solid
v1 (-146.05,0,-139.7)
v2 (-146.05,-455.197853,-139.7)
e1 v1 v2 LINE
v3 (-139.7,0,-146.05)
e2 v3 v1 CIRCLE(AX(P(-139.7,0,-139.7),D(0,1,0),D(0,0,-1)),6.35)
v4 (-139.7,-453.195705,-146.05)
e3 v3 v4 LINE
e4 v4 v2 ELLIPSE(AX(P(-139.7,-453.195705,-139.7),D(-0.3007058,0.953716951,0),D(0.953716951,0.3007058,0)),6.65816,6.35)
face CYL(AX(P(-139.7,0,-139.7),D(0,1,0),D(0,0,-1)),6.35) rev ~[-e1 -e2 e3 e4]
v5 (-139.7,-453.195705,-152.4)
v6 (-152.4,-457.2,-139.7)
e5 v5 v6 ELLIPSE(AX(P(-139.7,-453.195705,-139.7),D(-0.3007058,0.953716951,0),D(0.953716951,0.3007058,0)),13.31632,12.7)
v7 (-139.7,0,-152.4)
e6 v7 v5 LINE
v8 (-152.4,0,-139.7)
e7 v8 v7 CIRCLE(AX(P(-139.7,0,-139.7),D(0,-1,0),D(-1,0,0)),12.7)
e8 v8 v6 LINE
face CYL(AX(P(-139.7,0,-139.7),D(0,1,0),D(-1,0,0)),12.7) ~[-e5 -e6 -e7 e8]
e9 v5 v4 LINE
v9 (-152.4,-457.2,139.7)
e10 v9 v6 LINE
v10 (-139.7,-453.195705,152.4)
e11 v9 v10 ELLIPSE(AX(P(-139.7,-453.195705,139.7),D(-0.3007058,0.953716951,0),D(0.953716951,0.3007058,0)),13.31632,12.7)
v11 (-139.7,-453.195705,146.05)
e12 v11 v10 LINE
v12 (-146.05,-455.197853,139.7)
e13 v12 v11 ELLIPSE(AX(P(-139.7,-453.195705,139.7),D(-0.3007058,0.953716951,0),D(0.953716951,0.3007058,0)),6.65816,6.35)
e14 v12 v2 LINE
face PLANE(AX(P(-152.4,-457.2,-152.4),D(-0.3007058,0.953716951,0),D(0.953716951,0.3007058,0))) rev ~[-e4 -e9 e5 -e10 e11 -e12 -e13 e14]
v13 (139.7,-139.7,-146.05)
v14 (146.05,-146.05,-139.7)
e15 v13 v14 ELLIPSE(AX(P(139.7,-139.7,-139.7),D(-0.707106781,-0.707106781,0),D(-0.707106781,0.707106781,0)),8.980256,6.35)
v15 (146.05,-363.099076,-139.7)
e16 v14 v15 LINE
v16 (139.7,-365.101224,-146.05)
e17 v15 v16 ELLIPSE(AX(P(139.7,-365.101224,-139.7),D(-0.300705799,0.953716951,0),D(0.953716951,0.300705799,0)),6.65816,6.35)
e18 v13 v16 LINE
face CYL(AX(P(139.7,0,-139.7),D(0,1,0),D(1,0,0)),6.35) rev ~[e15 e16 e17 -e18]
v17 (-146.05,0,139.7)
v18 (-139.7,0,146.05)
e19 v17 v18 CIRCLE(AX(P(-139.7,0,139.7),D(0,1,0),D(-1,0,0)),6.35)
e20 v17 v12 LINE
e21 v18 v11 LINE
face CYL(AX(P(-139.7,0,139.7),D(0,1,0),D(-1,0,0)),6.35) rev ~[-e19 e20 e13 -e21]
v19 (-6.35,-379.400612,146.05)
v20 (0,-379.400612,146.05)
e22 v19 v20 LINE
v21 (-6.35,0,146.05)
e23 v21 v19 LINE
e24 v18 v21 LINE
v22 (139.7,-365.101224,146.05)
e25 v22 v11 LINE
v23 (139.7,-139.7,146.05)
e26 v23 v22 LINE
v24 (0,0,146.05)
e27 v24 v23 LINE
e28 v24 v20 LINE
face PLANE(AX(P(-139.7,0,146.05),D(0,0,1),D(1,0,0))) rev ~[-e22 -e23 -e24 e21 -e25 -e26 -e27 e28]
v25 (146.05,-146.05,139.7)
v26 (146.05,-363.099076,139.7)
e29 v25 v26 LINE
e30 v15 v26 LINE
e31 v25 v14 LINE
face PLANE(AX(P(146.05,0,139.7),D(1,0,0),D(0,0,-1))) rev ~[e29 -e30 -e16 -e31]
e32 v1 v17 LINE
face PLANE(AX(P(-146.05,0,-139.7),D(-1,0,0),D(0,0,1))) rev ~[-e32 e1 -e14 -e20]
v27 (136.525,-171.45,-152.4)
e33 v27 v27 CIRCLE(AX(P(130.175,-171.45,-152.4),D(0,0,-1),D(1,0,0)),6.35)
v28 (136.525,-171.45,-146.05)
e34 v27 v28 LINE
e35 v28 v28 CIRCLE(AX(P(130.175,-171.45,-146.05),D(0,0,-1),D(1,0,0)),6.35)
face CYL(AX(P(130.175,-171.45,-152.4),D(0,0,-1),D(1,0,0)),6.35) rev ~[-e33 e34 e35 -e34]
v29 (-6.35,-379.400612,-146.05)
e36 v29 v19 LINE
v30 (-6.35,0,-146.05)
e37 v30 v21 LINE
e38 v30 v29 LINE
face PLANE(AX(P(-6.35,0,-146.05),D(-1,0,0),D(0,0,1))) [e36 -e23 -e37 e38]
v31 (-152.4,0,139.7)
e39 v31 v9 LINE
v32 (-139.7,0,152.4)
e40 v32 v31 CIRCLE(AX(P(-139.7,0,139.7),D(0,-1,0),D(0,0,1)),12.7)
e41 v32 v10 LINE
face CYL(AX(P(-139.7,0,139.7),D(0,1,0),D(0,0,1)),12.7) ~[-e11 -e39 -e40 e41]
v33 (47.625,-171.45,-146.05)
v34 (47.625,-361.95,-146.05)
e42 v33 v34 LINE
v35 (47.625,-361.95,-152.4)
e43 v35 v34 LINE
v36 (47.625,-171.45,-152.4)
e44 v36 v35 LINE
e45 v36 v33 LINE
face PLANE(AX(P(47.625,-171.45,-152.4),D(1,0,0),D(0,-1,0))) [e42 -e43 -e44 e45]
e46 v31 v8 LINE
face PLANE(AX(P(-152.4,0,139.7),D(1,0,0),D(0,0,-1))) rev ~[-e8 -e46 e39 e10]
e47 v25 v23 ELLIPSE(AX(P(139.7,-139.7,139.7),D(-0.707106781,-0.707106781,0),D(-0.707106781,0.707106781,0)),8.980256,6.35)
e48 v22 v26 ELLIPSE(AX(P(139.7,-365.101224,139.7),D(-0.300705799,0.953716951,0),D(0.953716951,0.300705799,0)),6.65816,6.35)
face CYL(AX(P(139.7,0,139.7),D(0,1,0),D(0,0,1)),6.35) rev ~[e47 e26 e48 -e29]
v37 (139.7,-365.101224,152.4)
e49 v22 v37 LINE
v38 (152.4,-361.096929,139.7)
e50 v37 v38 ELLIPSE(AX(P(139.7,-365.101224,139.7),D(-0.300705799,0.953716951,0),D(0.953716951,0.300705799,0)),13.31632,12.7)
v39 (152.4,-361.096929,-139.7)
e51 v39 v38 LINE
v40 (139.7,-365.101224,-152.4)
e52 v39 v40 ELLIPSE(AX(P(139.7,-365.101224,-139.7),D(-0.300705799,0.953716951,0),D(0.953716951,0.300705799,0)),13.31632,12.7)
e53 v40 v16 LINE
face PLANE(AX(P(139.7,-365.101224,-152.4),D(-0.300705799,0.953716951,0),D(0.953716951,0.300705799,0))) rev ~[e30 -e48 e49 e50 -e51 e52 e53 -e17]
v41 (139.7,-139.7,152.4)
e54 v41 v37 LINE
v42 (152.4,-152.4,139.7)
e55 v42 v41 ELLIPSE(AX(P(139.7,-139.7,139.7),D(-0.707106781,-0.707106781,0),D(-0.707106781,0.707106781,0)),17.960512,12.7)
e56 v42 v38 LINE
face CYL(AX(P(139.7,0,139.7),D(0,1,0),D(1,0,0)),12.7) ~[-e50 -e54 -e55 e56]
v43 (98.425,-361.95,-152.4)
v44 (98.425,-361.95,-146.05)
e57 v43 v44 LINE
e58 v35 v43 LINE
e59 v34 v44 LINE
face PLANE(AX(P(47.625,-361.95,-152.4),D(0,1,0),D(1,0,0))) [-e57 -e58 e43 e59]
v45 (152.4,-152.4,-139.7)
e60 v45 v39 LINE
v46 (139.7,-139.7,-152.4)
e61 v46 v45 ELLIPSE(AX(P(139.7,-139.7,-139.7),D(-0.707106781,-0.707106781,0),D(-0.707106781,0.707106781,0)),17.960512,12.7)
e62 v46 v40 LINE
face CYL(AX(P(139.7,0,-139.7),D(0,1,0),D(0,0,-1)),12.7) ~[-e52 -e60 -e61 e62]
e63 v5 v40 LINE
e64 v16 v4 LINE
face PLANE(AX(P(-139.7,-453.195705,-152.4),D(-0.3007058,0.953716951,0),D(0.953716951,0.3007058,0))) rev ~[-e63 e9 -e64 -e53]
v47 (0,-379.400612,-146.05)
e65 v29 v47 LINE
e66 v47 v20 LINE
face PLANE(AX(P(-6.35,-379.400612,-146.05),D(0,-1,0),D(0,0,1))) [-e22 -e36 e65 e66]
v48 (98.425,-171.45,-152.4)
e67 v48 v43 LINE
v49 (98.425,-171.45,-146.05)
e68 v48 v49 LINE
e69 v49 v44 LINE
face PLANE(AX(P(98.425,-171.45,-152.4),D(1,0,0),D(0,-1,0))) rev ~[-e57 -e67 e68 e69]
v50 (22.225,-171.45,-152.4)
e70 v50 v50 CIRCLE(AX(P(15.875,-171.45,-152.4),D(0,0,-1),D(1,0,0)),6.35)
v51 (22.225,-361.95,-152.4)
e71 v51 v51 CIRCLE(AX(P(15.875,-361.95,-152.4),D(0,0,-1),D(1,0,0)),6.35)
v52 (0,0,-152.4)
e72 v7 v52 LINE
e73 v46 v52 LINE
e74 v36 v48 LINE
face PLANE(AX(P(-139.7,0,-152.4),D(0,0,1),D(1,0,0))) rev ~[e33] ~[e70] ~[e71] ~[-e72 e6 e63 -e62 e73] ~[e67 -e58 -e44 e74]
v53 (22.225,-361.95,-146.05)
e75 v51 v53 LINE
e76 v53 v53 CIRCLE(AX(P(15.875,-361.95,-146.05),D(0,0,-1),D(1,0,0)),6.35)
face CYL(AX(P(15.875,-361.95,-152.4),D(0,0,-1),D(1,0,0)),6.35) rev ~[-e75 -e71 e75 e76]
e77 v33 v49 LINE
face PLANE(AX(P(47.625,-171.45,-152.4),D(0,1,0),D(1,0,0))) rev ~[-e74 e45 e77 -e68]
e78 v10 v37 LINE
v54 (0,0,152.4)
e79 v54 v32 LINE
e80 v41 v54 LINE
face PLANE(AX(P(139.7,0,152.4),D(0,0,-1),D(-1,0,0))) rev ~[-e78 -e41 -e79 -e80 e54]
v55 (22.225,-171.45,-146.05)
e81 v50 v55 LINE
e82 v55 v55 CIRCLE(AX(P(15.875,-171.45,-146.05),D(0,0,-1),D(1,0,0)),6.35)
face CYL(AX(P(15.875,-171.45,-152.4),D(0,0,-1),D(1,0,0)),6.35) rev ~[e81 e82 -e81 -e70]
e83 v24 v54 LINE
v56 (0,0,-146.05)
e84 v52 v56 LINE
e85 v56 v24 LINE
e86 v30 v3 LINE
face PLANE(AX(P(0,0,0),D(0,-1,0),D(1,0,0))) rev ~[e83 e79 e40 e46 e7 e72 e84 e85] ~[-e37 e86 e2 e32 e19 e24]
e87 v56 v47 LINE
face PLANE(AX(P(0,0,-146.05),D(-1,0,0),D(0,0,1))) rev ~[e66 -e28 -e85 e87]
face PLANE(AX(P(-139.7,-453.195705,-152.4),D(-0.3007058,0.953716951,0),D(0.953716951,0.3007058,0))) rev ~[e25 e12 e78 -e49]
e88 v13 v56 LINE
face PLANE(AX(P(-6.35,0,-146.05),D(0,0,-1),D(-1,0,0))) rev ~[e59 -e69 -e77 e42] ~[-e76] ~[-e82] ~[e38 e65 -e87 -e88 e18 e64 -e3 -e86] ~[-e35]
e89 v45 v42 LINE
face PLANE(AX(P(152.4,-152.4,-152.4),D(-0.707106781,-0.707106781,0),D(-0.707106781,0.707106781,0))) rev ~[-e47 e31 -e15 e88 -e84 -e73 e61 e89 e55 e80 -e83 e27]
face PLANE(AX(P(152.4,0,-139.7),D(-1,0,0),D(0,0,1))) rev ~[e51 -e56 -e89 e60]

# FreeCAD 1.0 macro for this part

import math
import FreeCAD as App
import Part
import Sketcher

V = App.Vector
Q = App.Units.Quantity

doc = App.newDocument("Part")
body = doc.addObject("PartDesign::Body", "Body")

sketch1 = body.newObject("Sketcher::SketchObject", "Sketch")
sketch1.AttachmentSupport = (doc.getObject("XZ_Plane"), [""])
sketch1.MapMode = "FlatFace"
sketch1.addGeometry([
    Part.LineSegment(V(-140, -152, 0), V(140, -152, 0)),
    Part.ArcOfCircle(Part.Circle(V(140, -140, 0), V(0, 0, 1), 13), math.radians(-90), math.radians(0)),
    Part.LineSegment(V(152, -140, 0), V(152, 140, 0)),
    Part.ArcOfCircle(Part.Circle(V(140, 140, 0), V(0, 0, 1), 13), math.radians(0), math.radians(90)),
    Part.LineSegment(V(140, 152, 0), V(-140, 152, 0)),
    Part.ArcOfCircle(Part.Circle(V(-140, 140, 0), V(0, 0, 1), 13), math.radians(90), math.radians(180)),
    Part.LineSegment(V(-152, 140, 0), V(-152, -140, 0)),
    Part.ArcOfCircle(Part.Circle(V(-140, -140, 0), V(0, 0, 1), 13), math.radians(180), math.radians(270)),
    Part.LineSegment(V(-140, 146, 0), V(-6, 146, 0)),
    Part.LineSegment(V(-6, 146, 0), V(-6, -146, 0)),
    Part.LineSegment(V(-6, -146, 0), V(-140, -146, 0)),
    Part.ArcOfCircle(Part.Circle(V(-140, -140, 0), V(0, 0, 1), 6), math.radians(180), math.radians(270)),
    Part.LineSegment(V(-146, -140, 0), V(-146, 140, 0)),
    Part.ArcOfCircle(Part.Circle(V(-140, 140, 0), V(0, 0, 1), 6), math.radians(90), math.radians(180)),
    Part.LineSegment(V(0, 146, 0), V(140, 146, 0)),
    Part.ArcOfCircle(Part.Circle(V(140, 140, 0), V(0, 0, 1), 6), math.radians(0), math.radians(90)),
    Part.LineSegment(V(146, 140, 0), V(146, -140, 0)),
    Part.ArcOfCircle(Part.Circle(V(140, -140, 0), V(0, 0, 1), 6), math.radians(-90), math.radians(0)),
    Part.LineSegment(V(140, -146, 0), V(0, -146, 0)),
    Part.LineSegment(V(0, -146, 0), V(0, 146, 0)),
], False)
sketch1.addConstraint([
    Sketcher.Constraint("Tangent", 0, 2, 1, 1),
    Sketcher.Constraint("Tangent", 1, 2, 2, 1),
    Sketcher.Constraint("Tangent", 2, 2, 3, 1),
    Sketcher.Constraint("Tangent", 3, 2, 4, 1),
    Sketcher.Constraint("Tangent", 4, 2, 5, 1),
    Sketcher.Constraint("Tangent", 5, 2, 6, 1),
    Sketcher.Constraint("Tangent", 6, 2, 7, 1),
    Sketcher.Constraint("Tangent", 7, 2, 0, 1),
    Sketcher.Constraint("Coincident", 8, 2, 9, 1),
    Sketcher.Constraint("Coincident", 9, 2, 10, 1),
    Sketcher.Constraint("Tangent", 10, 2, 11, 2),
    Sketcher.Constraint("Tangent", 11, 1, 12, 1),
    Sketcher.Constraint("Tangent", 12, 2, 13, 2),
    Sketcher.Constraint("Tangent", 13, 1, 8, 1),
    Sketcher.Constraint("Tangent", 14, 2, 15, 2),
    Sketcher.Constraint("Tangent", 15, 1, 16, 1),
    Sketcher.Constraint("Tangent", 16, 2, 17, 2),
    Sketcher.Constraint("Tangent", 17, 1, 18, 1),
    Sketcher.Constraint("Coincident", 18, 2, 19, 1),
    Sketcher.Constraint("Coincident", 19, 2, 14, 1),
    Sketcher.Constraint("Horizontal", 0),
    Sketcher.Constraint("Vertical", 2),
    Sketcher.Constraint("Horizontal", 4),
    Sketcher.Constraint("Vertical", 6),
    Sketcher.Constraint("Horizontal", 8),
    Sketcher.Constraint("Vertical", 9),
    Sketcher.Constraint("Horizontal", 10),
    Sketcher.Constraint("Vertical", 12),
    Sketcher.Constraint("Horizontal", 14),
    Sketcher.Constraint("Vertical", 16),
    Sketcher.Constraint("Horizontal", 18),
    Sketcher.Constraint("Vertical", 19),
    Sketcher.Constraint("Coincident", 11, 3, 7, 3),
    Sketcher.Constraint("Coincident", 13, 3, 5, 3),
    Sketcher.Constraint("Coincident", 15, 3, 3, 3),
    Sketcher.Constraint("Coincident", 17, 3, 1, 3),
    Sketcher.Constraint("Equal", 1, 3),
    Sketcher.Constraint("Equal", 3, 5),
    Sketcher.Constraint("Equal", 5, 7),
    Sketcher.Constraint("Equal", 13, 15),
    Sketcher.Constraint("Symmetric", 1, 3, 5, 3, -1, 1),
    Sketcher.Constraint("PointOnObject", 18, 2, -2),
    Sketcher.Constraint("Equal", 4, 2),
    Sketcher.Constraint("Radius", 1, Q("0.5 in")),
    Sketcher.Constraint("DistanceX", 0, 1, 0, 2, Q("11 in")),
    Sketcher.Constraint("Radius", 11, Q("0.25 in")),
    Sketcher.Constraint("DistanceX", 9, 2, 16, 2, Q("6 in")),
])
pad1 = body.newObject("PartDesign::Pad", "Pad")
pad1.Profile = sketch1
pad1.Length = Q("18 in")

sketch2 = body.newObject("Sketcher::SketchObject", "Sketch001")
sketch2.AttachmentSupport = (doc.getObject("XY_Plane"), [""])
sketch2.MapMode = "FlatFace"
sketch2.AttachmentOffset = App.Placement(V(0, 0, -6 * 25.4), App.Rotation())
sketch2.addGeometry([
    Part.LineSegment(V(152, -152, 0), V(0, 0, 0)),
    Part.LineSegment(V(0, 0, 0), V(152, 0, 0)),
    Part.LineSegment(V(152, 0, 0), V(152, -152, 0)),
    Part.LineSegment(V(-152, -457, 0), V(-140, -453, 0)),
    Part.LineSegment(V(-140, -453, 0), V(140, -365, 0)),
    Part.LineSegment(V(140, -365, 0), V(152, -361, 0)),
    Part.LineSegment(V(152, -361, 0), V(152, -457, 0)),
    Part.LineSegment(V(152, -457, 0), V(-152, -457, 0)),
], False)
sketch2.addConstraint([
    Sketcher.Constraint("Coincident", 0, 2, 1, 1),
    Sketcher.Constraint("Coincident", 1, 2, 2, 1),
    Sketcher.Constraint("Coincident", 2, 2, 0, 1),
    Sketcher.Constraint("Coincident", 3, 2, 4, 1),
    Sketcher.Constraint("Coincident", 4, 2, 5, 1),
    Sketcher.Constraint("Coincident", 5, 2, 6, 1),
    Sketcher.Constraint("Coincident", 6, 2, 7, 1),
    Sketcher.Constraint("Coincident", 7, 2, 3, 1),
    Sketcher.Constraint("Horizontal", 1),
    Sketcher.Constraint("Vertical", 2),
    Sketcher.Constraint("Vertical", 6),
    Sketcher.Constraint("Horizontal", 7),
    Sketcher.Constraint("Coincident", 0, 2, -1, 1),
    Sketcher.Constraint("Parallel", 3, 4),
    Sketcher.Constraint("Parallel", 4, 5),
    Sketcher.Constraint("Vertical", 2, 2, 5, 2),
    Sketcher.Constraint("Equal", 1, 2),
    Sketcher.Constraint("Equal", 3, 5),
    Sketcher.Constraint("DistanceX", 1, 1, 1, 2, Q("6 in")),
    Sketcher.Constraint("DistanceX", 7, 2, 7, 1, Q("12 in")),
    Sketcher.Constraint("DistanceY", 6, 2, -1, 1, Q("18 in")),
    Sketcher.Constraint("DistanceX", 3, 2, 4, 2, Q("11 in")),
    Sketcher.Constraint("Angle", 3, Q("17.5 deg")),
])
pocket1 = body.newObject("PartDesign::Pocket", "Pocket")
pocket1.Profile = sketch2
pocket1.Type = "ThroughAll"
pocket1.Reversed = True

sketch3 = body.newObject("Sketcher::SketchObject", "Sketch002")
sketch3.AttachmentSupport = (doc.getObject("XY_Plane"), [""])
sketch3.MapMode = "FlatFace"
sketch3.AttachmentOffset = App.Placement(V(0, 0, -6 * 25.4), App.Rotation())
sketch3.addGeometry([
    Part.LineSegment(V(48, -362, 0), V(48, -171, 0)),
    Part.LineSegment(V(48, -171, 0), V(98, -171, 0)),
    Part.LineSegment(V(98, -171, 0), V(98, -362, 0)),
    Part.LineSegment(V(98, -362, 0), V(48, -362, 0)),
    Part.Circle(V(16, -171, 0), V(0, 0, 1), 6),
    Part.Circle(V(130, -171, 0), V(0, 0, 1), 6),
    Part.Circle(V(16, -362, 0), V(0, 0, 1), 6),
], False)
sketch3.addConstraint([
    Sketcher.Constraint("Coincident", 0, 2, 1, 1),
    Sketcher.Constraint("Coincident", 1, 2, 2, 1),
    Sketcher.Constraint("Coincident", 2, 2, 3, 1),
    Sketcher.Constraint("Coincident", 3, 2, 0, 1),
    Sketcher.Constraint("Vertical", 0),
    Sketcher.Constraint("Horizontal", 1),
    Sketcher.Constraint("Vertical", 2),
    Sketcher.Constraint("Horizontal", 3),
    Sketcher.Constraint("Equal", 4, 5),
    Sketcher.Constraint("Equal", 5, 6),
    Sketcher.Constraint("Horizontal", 4, 3, 5, 3),
    Sketcher.Constraint("Horizontal", 5, 3, 0, 2),
    Sketcher.Constraint("Horizontal", 6, 3, 2, 2),
    Sketcher.Constraint("Vertical", 4, 3, 6, 3),
    Sketcher.Constraint("Diameter", 4, Q("0.5 in")),
    Sketcher.Constraint("DistanceX", 1, 1, 1, 2, Q("2 in")),
    Sketcher.Constraint("DistanceY", 0, 1, 0, 2, Q("7.5 in")),
    Sketcher.Constraint("DistanceX", 4, 3, 5, 3, Q("4.5 in")),
    Sketcher.Constraint("DistanceY", 4, 3, -1, 1, Q("6.75 in")),
    Sketcher.Constraint("DistanceX", 4, 3, 0, 2, Q("1.25 in")),
    Sketcher.Constraint("DistanceX", -1, 1, 4, 3, Q("0.625 in")),
])
pocket2 = body.newObject("PartDesign::Pocket", "Pocket001")
pocket2.Profile = sketch3
pocket2.Length = Q("0.25 in")
pocket2.Reversed = True

sketch4 = body.newObject("Sketcher::SketchObject", "Sketch003")
sketch4.AttachmentSupport = (doc.getObject("YZ_Plane"), [""])
sketch4.MapMode = "FlatFace"
sketch4.AttachmentOffset = App.Placement(V(0, 0, -0.25 * 25.4), App.Rotation())
sketch4.addGeometry([
    Part.LineSegment(V(-379, 146, 0), V(-379, -146, 0)),
    Part.LineSegment(V(-379, -146, 0), V(-411, -146, 0)),
    Part.LineSegment(V(-411, -146, 0), V(-411, 146, 0)),
    Part.LineSegment(V(-411, 146, 0), V(-379, 146, 0)),
], False)
sketch4.addConstraint([
    Sketcher.Constraint("Coincident", 0, 2, 1, 1),
    Sketcher.Constraint("Coincident", 1, 2, 2, 1),
    Sketcher.Constraint("Coincident", 2, 2, 3, 1),
    Sketcher.Constraint("Coincident", 3, 2, 0, 1),
    Sketcher.Constraint("Vertical", 0),
    Sketcher.Constraint("Horizontal", 1),
    Sketcher.Constraint("Vertical", 2),
    Sketcher.Constraint("Horizontal", 3),
    Sketcher.Constraint("DistanceY", 0, 2, 0, 1, Q("11.5 in")),
    Sketcher.Constraint("DistanceX", 1, 2, 1, 1, Q("1.25 in")),
    Sketcher.Constraint("DistanceY", 0, 2, -1, 1, Q("5.75 in")),
    Sketcher.Constraint("DistanceX", 0, 2, -1, 1, Q("379.400612 mm")),
])
pocket3 = body.newObject("PartDesign::Pocket", "Pocket002")
pocket3.Profile = sketch4
pocket3.Type = "ThroughAll"
pocket3.Reversed = True

doc.recompute()
